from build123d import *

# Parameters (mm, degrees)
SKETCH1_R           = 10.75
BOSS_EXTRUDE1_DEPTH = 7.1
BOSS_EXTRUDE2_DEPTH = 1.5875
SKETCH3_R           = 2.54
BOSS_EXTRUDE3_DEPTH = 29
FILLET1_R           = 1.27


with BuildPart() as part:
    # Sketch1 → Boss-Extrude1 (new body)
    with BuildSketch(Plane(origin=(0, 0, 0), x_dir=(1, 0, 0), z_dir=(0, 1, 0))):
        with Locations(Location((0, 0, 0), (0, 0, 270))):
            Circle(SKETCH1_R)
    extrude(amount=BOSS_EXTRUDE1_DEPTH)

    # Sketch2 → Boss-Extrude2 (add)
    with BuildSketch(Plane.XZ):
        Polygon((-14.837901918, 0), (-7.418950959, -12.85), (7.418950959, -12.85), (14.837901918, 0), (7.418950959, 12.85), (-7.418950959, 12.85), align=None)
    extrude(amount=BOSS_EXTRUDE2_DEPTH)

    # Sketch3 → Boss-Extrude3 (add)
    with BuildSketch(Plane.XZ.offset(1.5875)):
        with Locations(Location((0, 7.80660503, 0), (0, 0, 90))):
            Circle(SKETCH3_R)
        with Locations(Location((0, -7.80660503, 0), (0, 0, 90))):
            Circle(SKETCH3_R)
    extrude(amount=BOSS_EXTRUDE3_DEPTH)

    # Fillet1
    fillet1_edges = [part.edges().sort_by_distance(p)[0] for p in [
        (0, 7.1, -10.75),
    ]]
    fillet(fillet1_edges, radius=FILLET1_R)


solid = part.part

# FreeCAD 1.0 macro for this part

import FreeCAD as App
import Part
import Sketcher
Q = App.Units.Quantity


def edges_at(feature, points):
    """Names of the edges that pass closest to the given points."""
    edges = feature.Shape.Edges
    near = lambda p: min(range(len(edges)), key=lambda i: edges[i].distToShape(Part.Vertex(*p))[0])
    return sorted({f"Edge{near(p) + 1}" for p in points})

doc = App.newDocument("Part")
params = doc.addObject("Spreadsheet::Sheet", "Params")
for row, (alias, value) in enumerate([
    ("sketch1_diameter", "21.5 mm"),
    ("pad1_length", "7.1 mm"),
    ("pad2_length", "1.5875 mm"),
    ("sketch3_diameter", "5.08 mm"),
    ("pad3_length", "29 mm"),
    ("fillet_radius", "1.27 mm"),
], start=1):
    params.set(f"A{row}", alias)
    params.set(f"B{row}", "=" + value)
    params.setAlias(f"B{row}", alias)

body = doc.addObject("PartDesign::Body", "Body")

sketch1 = body.newObject("Sketcher::SketchObject", "Sketch")
sketch1.AttachmentSupport = (doc.getObject("XZ_Plane"), [""])
sketch1.MapMode = "FlatFace"
sketch1.addGeometry(Part.Circle(App.Vector(0, 0, 0), App.Vector(0, 0, 1), 11), False)
sketch1.addConstraint([
    Sketcher.Constraint("Coincident", 0, 3, -1, 1),
    Sketcher.Constraint("Diameter", 0, Q("21.5 mm")),
])
sketch1.setExpression("Constraints[1]", "Params.sketch1_diameter")
pad1 = body.newObject("PartDesign::Pad", "Pad")
pad1.Profile = sketch1
pad1.setExpression("Length", "Params.pad1_length")
pad1.Reversed = True

sketch2 = body.newObject("Sketcher::SketchObject", "Sketch001")
sketch2.AttachmentSupport = (doc.getObject("XZ_Plane"), [""])
sketch2.MapMode = "FlatFace"
sketch2.addGeometry([
    Part.LineSegment(App.Vector(-15, 0, 0), App.Vector(-7, -13, 0)),
    Part.LineSegment(App.Vector(-7, -13, 0), App.Vector(7, -13, 0)),
    Part.LineSegment(App.Vector(7, -13, 0), App.Vector(15, 0, 0)),
    Part.LineSegment(App.Vector(15, 0, 0), App.Vector(7, 13, 0)),
    Part.LineSegment(App.Vector(7, 13, 0), App.Vector(-7, 13, 0)),
    Part.LineSegment(App.Vector(-7, 13, 0), App.Vector(-15, 0, 0)),
], False)
sketch2.addConstraint([
    Sketcher.Constraint("Coincident", 0, 2, 1, 1),
    Sketcher.Constraint("Coincident", 1, 2, 2, 1),
    Sketcher.Constraint("Coincident", 2, 2, 3, 1),
    Sketcher.Constraint("Coincident", 3, 2, 4, 1),
    Sketcher.Constraint("Coincident", 4, 2, 5, 1),
    Sketcher.Constraint("Coincident", 5, 2, 0, 1),
    Sketcher.Constraint("Horizontal", 1),
    Sketcher.Constraint("Horizontal", 4),
    Sketcher.Constraint("Symmetric", 0, 2, 3, 2, -1, 1),
    Sketcher.Constraint("Symmetric", 2, 2, 5, 2, -1, 1),
    Sketcher.Constraint("PointOnObject", 2, 2, -1),
    Sketcher.Constraint("Parallel", 2, 5),
    Sketcher.Constraint("Vertical", 1, 2, 3, 2),
    Sketcher.Constraint("Angle", 0, Q("-60 deg")),
    Sketcher.Constraint("DistanceY", 1, 2, 3, 2, Q("25.7 mm")),
    Sketcher.Constraint("DistanceX", 1, 1, 1, 2, Q("14.837902 mm")),
])
pad2 = body.newObject("PartDesign::Pad", "Pad001")
pad2.Profile = sketch2
pad2.setExpression("Length", "Params.pad2_length")

sketch3 = body.newObject("Sketcher::SketchObject", "Sketch002")
sketch3.AttachmentSupport = (doc.getObject("XZ_Plane"), [""])
sketch3.MapMode = "FlatFace"
sketch3.AttachmentOffset = App.Placement(App.Vector(0, 0, 1.5875), App.Rotation())
sketch3.addGeometry([
    Part.Circle(App.Vector(0, 7.8, 0), App.Vector(0, 0, 1), 2.5),
    Part.Circle(App.Vector(0, -7.8, 0), App.Vector(0, 0, 1), 2.5),
], False)
sketch3.addConstraint([
    Sketcher.Constraint("Equal", 0, 1),
    Sketcher.Constraint("Symmetric", 0, 3, 1, 3, -1, 1),
    Sketcher.Constraint("PointOnObject", 0, 3, -2),
    Sketcher.Constraint("Diameter", 0, Q("5.08 mm")),
    Sketcher.Constraint("DistanceY", 1, 3, 0, 3, Q("15.61321 mm")),
])
sketch3.setExpression("Constraints[3]", "Params.sketch3_diameter")
pad3 = body.newObject("PartDesign::Pad", "Pad002")
pad3.Profile = sketch3
pad3.setExpression("Length", "Params.pad3_length")
doc.recompute()

fillet = body.newObject("PartDesign::Fillet", "Fillet")
fillet.Base = (pad3, edges_at(pad3, [(0, 7.1, -10.75)]))
fillet.setExpression("Radius", "Params.fillet_radius")

doc.recompute()
